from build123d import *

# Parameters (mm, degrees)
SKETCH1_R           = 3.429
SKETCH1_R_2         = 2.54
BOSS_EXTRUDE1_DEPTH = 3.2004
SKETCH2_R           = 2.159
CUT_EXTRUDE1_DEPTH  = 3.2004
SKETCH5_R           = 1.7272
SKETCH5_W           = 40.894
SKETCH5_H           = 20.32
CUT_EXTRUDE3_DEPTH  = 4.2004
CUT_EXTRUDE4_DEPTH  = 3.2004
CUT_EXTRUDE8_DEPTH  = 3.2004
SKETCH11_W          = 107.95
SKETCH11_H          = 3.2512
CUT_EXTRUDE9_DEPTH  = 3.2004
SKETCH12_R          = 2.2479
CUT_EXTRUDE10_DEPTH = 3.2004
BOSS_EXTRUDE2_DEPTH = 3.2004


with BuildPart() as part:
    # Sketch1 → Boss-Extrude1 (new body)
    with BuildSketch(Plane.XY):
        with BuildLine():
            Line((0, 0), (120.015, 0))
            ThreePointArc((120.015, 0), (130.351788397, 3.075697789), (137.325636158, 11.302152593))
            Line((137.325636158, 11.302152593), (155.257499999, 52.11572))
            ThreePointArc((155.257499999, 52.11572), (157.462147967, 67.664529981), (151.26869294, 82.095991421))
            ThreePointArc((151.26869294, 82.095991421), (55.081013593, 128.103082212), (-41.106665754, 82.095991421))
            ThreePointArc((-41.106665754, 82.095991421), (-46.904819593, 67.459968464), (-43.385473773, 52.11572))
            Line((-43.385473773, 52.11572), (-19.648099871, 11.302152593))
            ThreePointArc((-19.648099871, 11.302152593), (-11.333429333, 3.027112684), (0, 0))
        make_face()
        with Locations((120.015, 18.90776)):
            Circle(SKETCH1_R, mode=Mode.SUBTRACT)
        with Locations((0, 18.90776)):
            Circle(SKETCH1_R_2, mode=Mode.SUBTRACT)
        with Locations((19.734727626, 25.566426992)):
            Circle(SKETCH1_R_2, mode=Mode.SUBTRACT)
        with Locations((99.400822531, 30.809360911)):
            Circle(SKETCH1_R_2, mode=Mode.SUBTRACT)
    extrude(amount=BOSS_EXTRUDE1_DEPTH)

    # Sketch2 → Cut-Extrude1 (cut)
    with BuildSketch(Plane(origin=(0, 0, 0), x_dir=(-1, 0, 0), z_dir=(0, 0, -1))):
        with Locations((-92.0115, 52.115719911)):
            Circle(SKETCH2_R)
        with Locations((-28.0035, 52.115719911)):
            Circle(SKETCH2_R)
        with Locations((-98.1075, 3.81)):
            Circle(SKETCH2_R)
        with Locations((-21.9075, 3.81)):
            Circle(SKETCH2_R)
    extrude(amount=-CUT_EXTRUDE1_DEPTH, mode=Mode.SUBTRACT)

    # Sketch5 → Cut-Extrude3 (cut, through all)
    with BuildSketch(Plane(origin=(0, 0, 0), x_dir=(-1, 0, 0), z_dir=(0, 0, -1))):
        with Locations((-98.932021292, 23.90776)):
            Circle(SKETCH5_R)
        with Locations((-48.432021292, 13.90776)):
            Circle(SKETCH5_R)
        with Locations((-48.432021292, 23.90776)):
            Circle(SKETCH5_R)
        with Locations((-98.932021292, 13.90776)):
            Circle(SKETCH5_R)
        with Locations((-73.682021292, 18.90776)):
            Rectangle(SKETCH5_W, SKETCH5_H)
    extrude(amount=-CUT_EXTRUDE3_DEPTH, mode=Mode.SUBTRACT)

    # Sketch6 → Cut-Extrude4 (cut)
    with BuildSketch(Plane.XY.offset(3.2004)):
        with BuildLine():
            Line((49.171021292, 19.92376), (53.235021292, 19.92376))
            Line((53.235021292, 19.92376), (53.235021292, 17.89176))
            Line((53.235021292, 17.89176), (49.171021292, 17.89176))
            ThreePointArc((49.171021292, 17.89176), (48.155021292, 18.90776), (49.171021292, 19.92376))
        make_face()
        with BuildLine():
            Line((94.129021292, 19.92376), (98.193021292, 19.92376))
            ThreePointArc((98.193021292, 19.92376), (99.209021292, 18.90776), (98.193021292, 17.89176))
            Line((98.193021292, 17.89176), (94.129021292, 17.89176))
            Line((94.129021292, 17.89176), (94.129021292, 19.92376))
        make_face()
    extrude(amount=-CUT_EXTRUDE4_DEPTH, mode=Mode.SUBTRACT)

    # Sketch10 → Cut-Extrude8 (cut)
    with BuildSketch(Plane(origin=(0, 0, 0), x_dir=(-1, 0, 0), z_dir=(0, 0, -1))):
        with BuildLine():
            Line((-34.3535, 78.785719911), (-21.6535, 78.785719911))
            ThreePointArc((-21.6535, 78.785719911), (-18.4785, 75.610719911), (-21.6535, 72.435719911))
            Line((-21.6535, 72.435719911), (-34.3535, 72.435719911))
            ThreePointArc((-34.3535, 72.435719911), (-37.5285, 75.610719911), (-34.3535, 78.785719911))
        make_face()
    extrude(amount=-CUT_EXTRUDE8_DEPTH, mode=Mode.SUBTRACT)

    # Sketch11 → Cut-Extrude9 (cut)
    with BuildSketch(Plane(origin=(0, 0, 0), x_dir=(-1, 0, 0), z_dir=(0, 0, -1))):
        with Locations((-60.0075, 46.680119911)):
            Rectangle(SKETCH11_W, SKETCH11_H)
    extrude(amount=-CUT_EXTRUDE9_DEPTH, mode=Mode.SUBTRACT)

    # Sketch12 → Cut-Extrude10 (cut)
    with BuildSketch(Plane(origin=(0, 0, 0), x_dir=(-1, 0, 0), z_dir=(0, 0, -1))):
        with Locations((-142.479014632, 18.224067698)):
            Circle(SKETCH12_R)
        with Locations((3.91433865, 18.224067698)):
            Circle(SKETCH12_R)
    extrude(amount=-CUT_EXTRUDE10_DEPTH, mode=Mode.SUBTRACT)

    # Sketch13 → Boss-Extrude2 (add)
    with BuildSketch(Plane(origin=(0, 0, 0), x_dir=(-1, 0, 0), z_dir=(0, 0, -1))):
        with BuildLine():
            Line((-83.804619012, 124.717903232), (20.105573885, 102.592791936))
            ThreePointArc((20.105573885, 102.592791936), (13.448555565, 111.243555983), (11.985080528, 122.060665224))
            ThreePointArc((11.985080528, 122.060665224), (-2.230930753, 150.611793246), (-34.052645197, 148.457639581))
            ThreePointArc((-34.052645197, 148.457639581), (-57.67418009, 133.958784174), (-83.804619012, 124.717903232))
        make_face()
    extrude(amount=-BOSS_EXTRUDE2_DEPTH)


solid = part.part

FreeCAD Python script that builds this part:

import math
import FreeCAD as App
import Part
import Sketcher

V = App.Vector
Q = App.Units.Quantity

doc = App.newDocument("Part")
body = doc.addObject("PartDesign::Body", "Body")

sketch1 = doc.addObject("Sketcher::SketchObject", "Sketch")
body.addObject(sketch1)
sketch1.AttachmentSupport = (doc.XY_Plane, [""])
sketch1.MapMode = "FlatFace"
sketch1.addGeometry([
    Part.LineSegment(V(0, 0, 0), V(120, 0, 0)),
    Part.ArcOfCircle(Part.Circle(V(120, 18.9, 0), V(0, 0, 1), 18.9), math.radians(-90), math.radians(-24)),
    Part.LineSegment(V(137.3, 11.3, 0), V(155.3, 52.1, 0)),
    Part.ArcOfCircle(Part.Circle(V(128.6, 63.8, 0), V(0, 0, 1), 29.1), math.radians(-24), math.radians(39)),
    Part.ArcOfCircle(Part.Circle(V(55.1, 4.5, 0), V(0, 0, 1), 123.6), math.radians(39), math.radians(141)),
    Part.ArcOfCircle(Part.Circle(V(-20.5, 65.4, 0), V(0, 0, 1), 26.5), math.radians(141), math.radians(210)),
    Part.LineSegment(V(-43.4, 52.1, 0), V(-19.6, 11.3, 0)),
    Part.ArcOfCircle(Part.Circle(V(0, 22.7, 0), V(0, 0, 1), 22.7), math.radians(-150), math.radians(-90)),
    Part.Circle(V(0, 18.9, 0), V(0, 0, 1), 2.5),
    Part.Circle(V(120, 18.9, 0), V(0, 0, 1), 3.4),
    Part.Circle(V(19.7, 25.6, 0), V(0, 0, 1), 2.5),
    Part.Circle(V(99.4, 30.8, 0), V(0, 0, 1), 2.5),
], False)
sketch1.addConstraint([
    Sketcher.Constraint("Tangent", 0, 2, 1, 1),
    Sketcher.Constraint("Tangent", 1, 2, 2, 1),
    Sketcher.Constraint("Tangent", 2, 2, 3, 1),
    Sketcher.Constraint("Tangent", 3, 2, 4, 1),
    Sketcher.Constraint("Tangent", 4, 2, 5, 1),
    Sketcher.Constraint("Tangent", 5, 2, 6, 1),
    Sketcher.Constraint("Tangent", 6, 2, 7, 1),
    Sketcher.Constraint("Tangent", 7, 2, 0, 1),
    Sketcher.Constraint("Horizontal", 0),
    Sketcher.Constraint("Coincident", 7, 2, -1, 1),
    Sketcher.Constraint("Coincident", 9, 3, 1, 3),
    Sketcher.Constraint("Equal", 8, 10),
    Sketcher.Constraint("Equal", 10, 11),
    Sketcher.Constraint("PointOnObject", 8, 3, -2),
    Sketcher.Constraint("Horizontal", 1, 3, 8, 3),
    Sketcher.Constraint("Horizontal", 3, 2, 4, 2),
    Sketcher.Constraint("Horizontal", 2, 2, 5, 2),
    Sketcher.Constraint("Horizontal", 1, 2, 6, 2),
    Sketcher.Constraint("Diameter", 8, Q("0.2 in")),
    Sketcher.Constraint("Diameter", 9, Q("0.27 in")),
    Sketcher.Constraint("Radius", 1, Q("0.7444 in")),
    Sketcher.Constraint("DistanceX", 0, 1, 0, 2, Q("4.725 in")),
    Sketcher.Constraint("Radius", 4, Q("123.55402 mm")),
    Sketcher.Constraint("Radius", 5, Q("26.52202 mm")),
    Sketcher.Constraint("DistanceX", -1, 1, 2, 2, Q("6.1125 in")),
    Sketcher.Constraint("DistanceY", -1, 1, 2, 2, Q("2.0518 in")),
    Sketcher.Constraint("Radius", 3, Q("29.110345 mm")),
    Sketcher.Constraint("DistanceY", 1, 3, 11, 3, Q("11.901601 mm")),
    Sketcher.Constraint("DistanceX", 5, 2, 10, 3, Q("63.120201 mm")),
    Sketcher.Constraint("DistanceY", 7, 3, 10, 3, Q("2.836842 mm")),
    Sketcher.Constraint("DistanceX", 11, 3, 3, 3, Q("29.205261 mm")),
])
pad1 = doc.addObject("PartDesign::Pad", "Pad")
body.addObject(pad1)
pad1.Profile = sketch1
pad1.Length = Q("0.126 in")

sketch2 = doc.addObject("Sketcher::SketchObject", "Sketch001")
body.addObject(sketch2)
sketch2.AttachmentSupport = (doc.XY_Plane, [""])
sketch2.MapMode = "FlatFace"
sketch2.addGeometry([
    Part.Circle(V(92, 52.1, 0), V(0, 0, 1), 2.2),
    Part.Circle(V(28, 52.1, 0), V(0, 0, 1), 2.2),
    Part.Circle(V(98.1, 3.8, 0), V(0, 0, 1), 2.2),
    Part.Circle(V(21.9, 3.8, 0), V(0, 0, 1), 2.2),
], False)
sketch2.addConstraint([
    Sketcher.Constraint("Equal", 0, 1),
    Sketcher.Constraint("Equal", 1, 2),
    Sketcher.Constraint("Equal", 2, 3),
    Sketcher.Constraint("Horizontal", 0, 3, 1, 3),
    Sketcher.Constraint("Horizontal", 2, 3, 3, 3),
    Sketcher.Constraint("Diameter", 0, Q("0.17 in")),
    Sketcher.Constraint("DistanceX", 3, 3, 2, 3, Q("3 in")),
    Sketcher.Constraint("DistanceY", -1, 1, 2, 3, Q("0.15 in")),
    Sketcher.Constraint("DistanceX", 1, 3, 0, 3, Q("2.52 in")),
    Sketcher.Constraint("DistanceX", 0, 3, 2, 3, Q("0.24 in")),
    Sketcher.Constraint("DistanceX", -1, 1, 0, 3, Q("3.6225 in")),
    Sketcher.Constraint("DistanceY", -1, 1, 0, 3, Q("2.0518 in")),
])
pocket1 = doc.addObject("PartDesign::Pocket", "Pocket")
body.addObject(pocket1)
pocket1.Profile = sketch2
pocket1.Length = Q("0.126 in")
pocket1.Reversed = True

sketch3 = doc.addObject("Sketcher::SketchObject", "Sketch002")
body.addObject(sketch3)
sketch3.AttachmentSupport = (doc.XY_Plane, [""])
sketch3.MapMode = "FlatFace"
sketch3.addGeometry([
    Part.Circle(V(98.9, 23.9, 0), V(0, 0, 1), 1.7),
    Part.Circle(V(48.4, 13.9, 0), V(0, 0, 1), 1.7),
    Part.Circle(V(48.4, 23.9, 0), V(0, 0, 1), 1.7),
    Part.Circle(V(98.9, 13.9, 0), V(0, 0, 1), 1.7),
    Part.LineSegment(V(94.1, 29.1, 0), V(94.1, 8.7, 0)),
    Part.LineSegment(V(94.1, 8.7, 0), V(53.2, 8.7, 0)),
    Part.LineSegment(V(53.2, 8.7, 0), V(53.2, 29.1, 0)),
    Part.LineSegment(V(53.2, 29.1, 0), V(94.1, 29.1, 0)),
], False)
sketch3.addConstraint([
    Sketcher.Constraint("Coincident", 4, 2, 5, 1),
    Sketcher.Constraint("Coincident", 5, 2, 6, 1),
    Sketcher.Constraint("Coincident", 6, 2, 7, 1),
    Sketcher.Constraint("Coincident", 7, 2, 4, 1),
    Sketcher.Constraint("Vertical", 4),
    Sketcher.Constraint("Horizontal", 5),
    Sketcher.Constraint("Vertical", 6),
    Sketcher.Constraint("Horizontal", 7),
    Sketcher.Constraint("Equal", 0, 1),
    Sketcher.Constraint("Equal", 1, 2),
    Sketcher.Constraint("Equal", 2, 3),
    Sketcher.Constraint("Horizontal", 0, 3, 2, 3),
    Sketcher.Constraint("Horizontal", 1, 3, 3, 3),
    Sketcher.Constraint("Vertical", 1, 3, 2, 3),
    Sketcher.Constraint("Vertical", 0, 3, 3, 3),
    Sketcher.Constraint("Diameter", 0, Q("0.136 in")),
    Sketcher.Constraint("DistanceY", 4, 2, 4, 1, Q("0.8 in")),
    Sketcher.Constraint("DistanceX", 5, 2, 5, 1, Q("1.61 in")),
    Sketcher.Constraint("DistanceY", -1, 1, 4, 2, Q("0.3444 in")),
    Sketcher.Constraint("DistanceX", 1, 3, 0, 3, Q("50.5 mm")),
    Sketcher.Constraint("DistanceY", 1, 3, 0, 3, Q("10 mm")),
    Sketcher.Constraint("DistanceX", 4, 2, 3, 3, Q("4.803 mm")),
    Sketcher.Constraint("DistanceY", 4, 2, 3, 3, Q("5.16 mm")),
    Sketcher.Constraint("DistanceX", -1, 1, 0, 3, Q("98.932021 mm")),
])
pocket2 = doc.addObject("PartDesign::Pocket", "Pocket001")
body.addObject(pocket2)
pocket2.Profile = sketch3
pocket2.Type = "ThroughAll"
pocket2.Reversed = True

sketch4 = doc.addObject("Sketcher::SketchObject", "Sketch003")
body.addObject(sketch4)
sketch4.AttachmentSupport = (doc.XY_Plane, [""])
sketch4.MapMode = "FlatFace"
sketch4.AttachmentOffset = App.Placement(V(0, 0, 0.126 * 25.4), App.Rotation())
sketch4.addGeometry([
    Part.LineSegment(V(53.2, 19.9, 0), V(49.2, 19.9, 0)),
    Part.ArcOfCircle(Part.Circle(V(49.2, 18.9, 0), V(0, 0, 1), 1), math.radians(90), math.radians(270)),
    Part.LineSegment(V(49.2, 17.9, 0), V(53.2, 17.9, 0)),
    Part.LineSegment(V(53.2, 17.9, 0), V(53.2, 19.9, 0)),
    Part.LineSegment(V(98.2, 19.9, 0), V(94.1, 19.9, 0)),
    Part.LineSegment(V(94.1, 19.9, 0), V(94.1, 17.9, 0)),
    Part.LineSegment(V(94.1, 17.9, 0), V(98.2, 17.9, 0)),
    Part.ArcOfCircle(Part.Circle(V(98.2, 18.9, 0), V(0, 0, 1), 1), math.radians(-90), math.radians(90)),
], False)
sketch4.addConstraint([
    Sketcher.Constraint("Tangent", 0, 2, 1, 1),
    Sketcher.Constraint("Tangent", 1, 2, 2, 1),
    Sketcher.Constraint("Coincident", 2, 2, 3, 1),
    Sketcher.Constraint("Coincident", 3, 2, 0, 1),
    Sketcher.Constraint("Coincident", 4, 2, 5, 1),
    Sketcher.Constraint("Coincident", 5, 2, 6, 1),
    Sketcher.Constraint("Tangent", 6, 2, 7, 1),
    Sketcher.Constraint("Tangent", 7, 2, 4, 1),
    Sketcher.Constraint("Horizontal", 0),
    Sketcher.Constraint("Horizontal", 2),
    Sketcher.Constraint("Vertical", 3),
    Sketcher.Constraint("Horizontal", 4),
    Sketcher.Constraint("Vertical", 5),
    Sketcher.Constraint("Horizontal", 6),
    Sketcher.Constraint("Equal", 1, 7),
    Sketcher.Constraint("Horizontal", 1, 3, 7, 3),
    Sketcher.Constraint("Equal", 2, 4),
    Sketcher.Constraint("Radius", 1, Q("0.04 in")),
    Sketcher.Constraint("DistanceX", 0, 2, 0, 1, Q("0.16 in")),
    Sketcher.Constraint("DistanceX", 1, 3, 7, 3, Q("1.93 in")),
    Sketcher.Constraint("DistanceY", -1, 1, 1, 3, Q("0.7444 in")),
    Sketcher.Constraint("DistanceX", -1, 1, 1, 3, Q("49.171021 mm")),
])
pocket3 = doc.addObject("PartDesign::Pocket", "Pocket002")
body.addObject(pocket3)
pocket3.Profile = sketch4
pocket3.Length = Q("0.126 in")

sketch5 = doc.addObject("Sketcher::SketchObject", "Sketch004")
body.addObject(sketch5)
sketch5.AttachmentSupport = (doc.XY_Plane, [""])
sketch5.MapMode = "FlatFace"
sketch5.addGeometry([
    Part.LineSegment(V(21.7, 78.8, 0), V(34.4, 78.8, 0)),
    Part.ArcOfCircle(Part.Circle(V(34.4, 75.6, 0), V(0, 0, 1), 3.2), math.radians(-90), math.radians(90)),
    Part.LineSegment(V(34.4, 72.4, 0), V(21.7, 72.4, 0)),
    Part.ArcOfCircle(Part.Circle(V(21.7, 75.6, 0), V(0, 0, 1), 3.2), math.radians(90), math.radians(270)),
], False)
sketch5.addConstraint([
    Sketcher.Constraint("Tangent", 0, 2, 1, 2),
    Sketcher.Constraint("Tangent", 1, 1, 2, 1),
    Sketcher.Constraint("Tangent", 2, 2, 3, 2),
    Sketcher.Constraint("Tangent", 3, 1, 0, 1),
    Sketcher.Constraint("Horizontal", 0),
    Sketcher.Constraint("Horizontal", 2),
    Sketcher.Constraint("DistanceX", 0, 1, 0, 2, Q("0.5 in")),
    Sketcher.Constraint("Radius", 1, Q("0.125 in")),
    Sketcher.Constraint("DistanceX", -1, 1, 1, 3, Q("1.3525 in")),
    Sketcher.Constraint("DistanceY", -1, 1, 1, 3, Q("2.9768 in")),
])
pocket4 = doc.addObject("PartDesign::Pocket", "Pocket003")
body.addObject(pocket4)
pocket4.Profile = sketch5
pocket4.Length = Q("0.126 in")
pocket4.Reversed = True

sketch6 = doc.addObject("Sketcher::SketchObject", "Sketch005")
body.addObject(sketch6)
sketch6.AttachmentSupport = (doc.XY_Plane, [""])
sketch6.MapMode = "FlatFace"
sketch6.addGeometry([
    Part.LineSegment(V(114, 48.3, 0), V(114, 45.1, 0)),
    Part.LineSegment(V(114, 45.1, 0), V(6, 45.1, 0)),
    Part.LineSegment(V(6, 45.1, 0), V(6, 48.3, 0)),
    Part.LineSegment(V(6, 48.3, 0), V(114, 48.3, 0)),
], False)
sketch6.addConstraint([
    Sketcher.Constraint("Coincident", 0, 2, 1, 1),
    Sketcher.Constraint("Coincident", 1, 2, 2, 1),
    Sketcher.Constraint("Coincident", 2, 2, 3, 1),
    Sketcher.Constraint("Coincident", 3, 2, 0, 1),
    Sketcher.Constraint("Vertical", 0),
    Sketcher.Constraint("Horizontal", 1),
    Sketcher.Constraint("Vertical", 2),
    Sketcher.Constraint("Horizontal", 3),
    Sketcher.Constraint("DistanceX", 1, 2, 1, 1, Q("4.25 in")),
    Sketcher.Constraint("DistanceY", 0, 2, 0, 1, Q("0.128 in")),
    Sketcher.Constraint("DistanceX", -1, 1, 0, 2, Q("4.4875 in")),
    Sketcher.Constraint("DistanceY", -1, 1, 0, 2, Q("1.7738 in")),
])
pocket5 = doc.addObject("PartDesign::Pocket", "Pocket004")
body.addObject(pocket5)
pocket5.Profile = sketch6
pocket5.Length = Q("0.126 in")
pocket5.Reversed = True

sketch7 = doc.addObject("Sketcher::SketchObject", "Sketch006")
body.addObject(sketch7)
sketch7.AttachmentSupport = (doc.XY_Plane, [""])
sketch7.MapMode = "FlatFace"
sketch7.addGeometry([
    Part.Circle(V(142.5, 18.2, 0), V(0, 0, 1), 2.2),
    Part.Circle(V(-3.9, 18.2, 0), V(0, 0, 1), 2.2),
], False)
sketch7.addConstraint([
    Sketcher.Constraint("Equal", 0, 1),
    Sketcher.Constraint("Horizontal", 0, 3, 1, 3),
    Sketcher.Constraint("Diameter", 0, Q("0.177 in")),
    Sketcher.Constraint("DistanceX", 1, 3, -1, 1, Q("3.914339 mm")),
    Sketcher.Constraint("DistanceX", -1, 1, 0, 3, Q("142.479015 mm")),
    Sketcher.Constraint("DistanceY", -1, 1, 0, 3, Q("18.224068 mm")),
])
pocket6 = doc.addObject("PartDesign::Pocket", "Pocket005")
body.addObject(pocket6)
pocket6.Profile = sketch7
pocket6.Length = Q("0.126 in")
pocket6.Reversed = True

sketch8 = doc.addObject("Sketcher::SketchObject", "Sketch007")
body.addObject(sketch8)
sketch8.AttachmentSupport = (doc.XY_Plane, [""])
sketch8.MapMode = "FlatFace"
sketch8.addGeometry([
    Part.LineSegment(V(84, 125, 0), V(-20, 103, 0)),
    Part.ArcOfCircle(Part.Circle(V(-33, 119, 0), V(0, 0, 1), 21), math.radians(-53), math.radians(7)),
    Part.ArcOfCircle(Part.Circle(V(17, 126, 0), V(0, 0, 1), 29), math.radians(52), math.radians(187)),
    Part.ArcOfCircle(Part.Circle(V(114, 253, 0), V(0, 0, 1), 132), math.radians(-128), math.radians(-103)),
], False)
sketch8.addConstraint([
    Sketcher.Constraint("Coincident", 0, 2, 1, 1),
    Sketcher.Constraint("Tangent", 1, 2, 2, 2),
    Sketcher.Constraint("Tangent", 2, 1, 3, 1),
    Sketcher.Constraint("Coincident", 3, 2, 0, 1),
    Sketcher.Constraint("Radius", 1, Q("21.174039 mm")),
    Sketcher.Constraint("Radius", 2, Q("28.740626 mm")),
    Sketcher.Constraint("Radius", 3, Q("131.858796 mm")),
    Sketcher.Constraint("DistanceX", 1, 3, 2, 1, Q("2.6395001 in")),
    Sketcher.Constraint("DistanceX", 1, 2, 3, 2, Q("95.7897 mm")),
    Sketcher.Constraint("Distance", 0, Q("106.239582 mm")),
    Sketcher.Constraint("DistanceY", -1, 1, 1, 3, Q("119.395011 mm")),
    Sketcher.Constraint("DistanceX", -1, 1, 2, 3, Q("16.526881 mm")),
    Sketcher.Constraint("DistanceY", -1, 1, 0, 2, Q("102.592792 mm")),
])
pad2 = doc.addObject("PartDesign::Pad", "Pad001")
body.addObject(pad2)
pad2.Profile = sketch8
pad2.Length = Q("0.126 in")

doc.recompute()
